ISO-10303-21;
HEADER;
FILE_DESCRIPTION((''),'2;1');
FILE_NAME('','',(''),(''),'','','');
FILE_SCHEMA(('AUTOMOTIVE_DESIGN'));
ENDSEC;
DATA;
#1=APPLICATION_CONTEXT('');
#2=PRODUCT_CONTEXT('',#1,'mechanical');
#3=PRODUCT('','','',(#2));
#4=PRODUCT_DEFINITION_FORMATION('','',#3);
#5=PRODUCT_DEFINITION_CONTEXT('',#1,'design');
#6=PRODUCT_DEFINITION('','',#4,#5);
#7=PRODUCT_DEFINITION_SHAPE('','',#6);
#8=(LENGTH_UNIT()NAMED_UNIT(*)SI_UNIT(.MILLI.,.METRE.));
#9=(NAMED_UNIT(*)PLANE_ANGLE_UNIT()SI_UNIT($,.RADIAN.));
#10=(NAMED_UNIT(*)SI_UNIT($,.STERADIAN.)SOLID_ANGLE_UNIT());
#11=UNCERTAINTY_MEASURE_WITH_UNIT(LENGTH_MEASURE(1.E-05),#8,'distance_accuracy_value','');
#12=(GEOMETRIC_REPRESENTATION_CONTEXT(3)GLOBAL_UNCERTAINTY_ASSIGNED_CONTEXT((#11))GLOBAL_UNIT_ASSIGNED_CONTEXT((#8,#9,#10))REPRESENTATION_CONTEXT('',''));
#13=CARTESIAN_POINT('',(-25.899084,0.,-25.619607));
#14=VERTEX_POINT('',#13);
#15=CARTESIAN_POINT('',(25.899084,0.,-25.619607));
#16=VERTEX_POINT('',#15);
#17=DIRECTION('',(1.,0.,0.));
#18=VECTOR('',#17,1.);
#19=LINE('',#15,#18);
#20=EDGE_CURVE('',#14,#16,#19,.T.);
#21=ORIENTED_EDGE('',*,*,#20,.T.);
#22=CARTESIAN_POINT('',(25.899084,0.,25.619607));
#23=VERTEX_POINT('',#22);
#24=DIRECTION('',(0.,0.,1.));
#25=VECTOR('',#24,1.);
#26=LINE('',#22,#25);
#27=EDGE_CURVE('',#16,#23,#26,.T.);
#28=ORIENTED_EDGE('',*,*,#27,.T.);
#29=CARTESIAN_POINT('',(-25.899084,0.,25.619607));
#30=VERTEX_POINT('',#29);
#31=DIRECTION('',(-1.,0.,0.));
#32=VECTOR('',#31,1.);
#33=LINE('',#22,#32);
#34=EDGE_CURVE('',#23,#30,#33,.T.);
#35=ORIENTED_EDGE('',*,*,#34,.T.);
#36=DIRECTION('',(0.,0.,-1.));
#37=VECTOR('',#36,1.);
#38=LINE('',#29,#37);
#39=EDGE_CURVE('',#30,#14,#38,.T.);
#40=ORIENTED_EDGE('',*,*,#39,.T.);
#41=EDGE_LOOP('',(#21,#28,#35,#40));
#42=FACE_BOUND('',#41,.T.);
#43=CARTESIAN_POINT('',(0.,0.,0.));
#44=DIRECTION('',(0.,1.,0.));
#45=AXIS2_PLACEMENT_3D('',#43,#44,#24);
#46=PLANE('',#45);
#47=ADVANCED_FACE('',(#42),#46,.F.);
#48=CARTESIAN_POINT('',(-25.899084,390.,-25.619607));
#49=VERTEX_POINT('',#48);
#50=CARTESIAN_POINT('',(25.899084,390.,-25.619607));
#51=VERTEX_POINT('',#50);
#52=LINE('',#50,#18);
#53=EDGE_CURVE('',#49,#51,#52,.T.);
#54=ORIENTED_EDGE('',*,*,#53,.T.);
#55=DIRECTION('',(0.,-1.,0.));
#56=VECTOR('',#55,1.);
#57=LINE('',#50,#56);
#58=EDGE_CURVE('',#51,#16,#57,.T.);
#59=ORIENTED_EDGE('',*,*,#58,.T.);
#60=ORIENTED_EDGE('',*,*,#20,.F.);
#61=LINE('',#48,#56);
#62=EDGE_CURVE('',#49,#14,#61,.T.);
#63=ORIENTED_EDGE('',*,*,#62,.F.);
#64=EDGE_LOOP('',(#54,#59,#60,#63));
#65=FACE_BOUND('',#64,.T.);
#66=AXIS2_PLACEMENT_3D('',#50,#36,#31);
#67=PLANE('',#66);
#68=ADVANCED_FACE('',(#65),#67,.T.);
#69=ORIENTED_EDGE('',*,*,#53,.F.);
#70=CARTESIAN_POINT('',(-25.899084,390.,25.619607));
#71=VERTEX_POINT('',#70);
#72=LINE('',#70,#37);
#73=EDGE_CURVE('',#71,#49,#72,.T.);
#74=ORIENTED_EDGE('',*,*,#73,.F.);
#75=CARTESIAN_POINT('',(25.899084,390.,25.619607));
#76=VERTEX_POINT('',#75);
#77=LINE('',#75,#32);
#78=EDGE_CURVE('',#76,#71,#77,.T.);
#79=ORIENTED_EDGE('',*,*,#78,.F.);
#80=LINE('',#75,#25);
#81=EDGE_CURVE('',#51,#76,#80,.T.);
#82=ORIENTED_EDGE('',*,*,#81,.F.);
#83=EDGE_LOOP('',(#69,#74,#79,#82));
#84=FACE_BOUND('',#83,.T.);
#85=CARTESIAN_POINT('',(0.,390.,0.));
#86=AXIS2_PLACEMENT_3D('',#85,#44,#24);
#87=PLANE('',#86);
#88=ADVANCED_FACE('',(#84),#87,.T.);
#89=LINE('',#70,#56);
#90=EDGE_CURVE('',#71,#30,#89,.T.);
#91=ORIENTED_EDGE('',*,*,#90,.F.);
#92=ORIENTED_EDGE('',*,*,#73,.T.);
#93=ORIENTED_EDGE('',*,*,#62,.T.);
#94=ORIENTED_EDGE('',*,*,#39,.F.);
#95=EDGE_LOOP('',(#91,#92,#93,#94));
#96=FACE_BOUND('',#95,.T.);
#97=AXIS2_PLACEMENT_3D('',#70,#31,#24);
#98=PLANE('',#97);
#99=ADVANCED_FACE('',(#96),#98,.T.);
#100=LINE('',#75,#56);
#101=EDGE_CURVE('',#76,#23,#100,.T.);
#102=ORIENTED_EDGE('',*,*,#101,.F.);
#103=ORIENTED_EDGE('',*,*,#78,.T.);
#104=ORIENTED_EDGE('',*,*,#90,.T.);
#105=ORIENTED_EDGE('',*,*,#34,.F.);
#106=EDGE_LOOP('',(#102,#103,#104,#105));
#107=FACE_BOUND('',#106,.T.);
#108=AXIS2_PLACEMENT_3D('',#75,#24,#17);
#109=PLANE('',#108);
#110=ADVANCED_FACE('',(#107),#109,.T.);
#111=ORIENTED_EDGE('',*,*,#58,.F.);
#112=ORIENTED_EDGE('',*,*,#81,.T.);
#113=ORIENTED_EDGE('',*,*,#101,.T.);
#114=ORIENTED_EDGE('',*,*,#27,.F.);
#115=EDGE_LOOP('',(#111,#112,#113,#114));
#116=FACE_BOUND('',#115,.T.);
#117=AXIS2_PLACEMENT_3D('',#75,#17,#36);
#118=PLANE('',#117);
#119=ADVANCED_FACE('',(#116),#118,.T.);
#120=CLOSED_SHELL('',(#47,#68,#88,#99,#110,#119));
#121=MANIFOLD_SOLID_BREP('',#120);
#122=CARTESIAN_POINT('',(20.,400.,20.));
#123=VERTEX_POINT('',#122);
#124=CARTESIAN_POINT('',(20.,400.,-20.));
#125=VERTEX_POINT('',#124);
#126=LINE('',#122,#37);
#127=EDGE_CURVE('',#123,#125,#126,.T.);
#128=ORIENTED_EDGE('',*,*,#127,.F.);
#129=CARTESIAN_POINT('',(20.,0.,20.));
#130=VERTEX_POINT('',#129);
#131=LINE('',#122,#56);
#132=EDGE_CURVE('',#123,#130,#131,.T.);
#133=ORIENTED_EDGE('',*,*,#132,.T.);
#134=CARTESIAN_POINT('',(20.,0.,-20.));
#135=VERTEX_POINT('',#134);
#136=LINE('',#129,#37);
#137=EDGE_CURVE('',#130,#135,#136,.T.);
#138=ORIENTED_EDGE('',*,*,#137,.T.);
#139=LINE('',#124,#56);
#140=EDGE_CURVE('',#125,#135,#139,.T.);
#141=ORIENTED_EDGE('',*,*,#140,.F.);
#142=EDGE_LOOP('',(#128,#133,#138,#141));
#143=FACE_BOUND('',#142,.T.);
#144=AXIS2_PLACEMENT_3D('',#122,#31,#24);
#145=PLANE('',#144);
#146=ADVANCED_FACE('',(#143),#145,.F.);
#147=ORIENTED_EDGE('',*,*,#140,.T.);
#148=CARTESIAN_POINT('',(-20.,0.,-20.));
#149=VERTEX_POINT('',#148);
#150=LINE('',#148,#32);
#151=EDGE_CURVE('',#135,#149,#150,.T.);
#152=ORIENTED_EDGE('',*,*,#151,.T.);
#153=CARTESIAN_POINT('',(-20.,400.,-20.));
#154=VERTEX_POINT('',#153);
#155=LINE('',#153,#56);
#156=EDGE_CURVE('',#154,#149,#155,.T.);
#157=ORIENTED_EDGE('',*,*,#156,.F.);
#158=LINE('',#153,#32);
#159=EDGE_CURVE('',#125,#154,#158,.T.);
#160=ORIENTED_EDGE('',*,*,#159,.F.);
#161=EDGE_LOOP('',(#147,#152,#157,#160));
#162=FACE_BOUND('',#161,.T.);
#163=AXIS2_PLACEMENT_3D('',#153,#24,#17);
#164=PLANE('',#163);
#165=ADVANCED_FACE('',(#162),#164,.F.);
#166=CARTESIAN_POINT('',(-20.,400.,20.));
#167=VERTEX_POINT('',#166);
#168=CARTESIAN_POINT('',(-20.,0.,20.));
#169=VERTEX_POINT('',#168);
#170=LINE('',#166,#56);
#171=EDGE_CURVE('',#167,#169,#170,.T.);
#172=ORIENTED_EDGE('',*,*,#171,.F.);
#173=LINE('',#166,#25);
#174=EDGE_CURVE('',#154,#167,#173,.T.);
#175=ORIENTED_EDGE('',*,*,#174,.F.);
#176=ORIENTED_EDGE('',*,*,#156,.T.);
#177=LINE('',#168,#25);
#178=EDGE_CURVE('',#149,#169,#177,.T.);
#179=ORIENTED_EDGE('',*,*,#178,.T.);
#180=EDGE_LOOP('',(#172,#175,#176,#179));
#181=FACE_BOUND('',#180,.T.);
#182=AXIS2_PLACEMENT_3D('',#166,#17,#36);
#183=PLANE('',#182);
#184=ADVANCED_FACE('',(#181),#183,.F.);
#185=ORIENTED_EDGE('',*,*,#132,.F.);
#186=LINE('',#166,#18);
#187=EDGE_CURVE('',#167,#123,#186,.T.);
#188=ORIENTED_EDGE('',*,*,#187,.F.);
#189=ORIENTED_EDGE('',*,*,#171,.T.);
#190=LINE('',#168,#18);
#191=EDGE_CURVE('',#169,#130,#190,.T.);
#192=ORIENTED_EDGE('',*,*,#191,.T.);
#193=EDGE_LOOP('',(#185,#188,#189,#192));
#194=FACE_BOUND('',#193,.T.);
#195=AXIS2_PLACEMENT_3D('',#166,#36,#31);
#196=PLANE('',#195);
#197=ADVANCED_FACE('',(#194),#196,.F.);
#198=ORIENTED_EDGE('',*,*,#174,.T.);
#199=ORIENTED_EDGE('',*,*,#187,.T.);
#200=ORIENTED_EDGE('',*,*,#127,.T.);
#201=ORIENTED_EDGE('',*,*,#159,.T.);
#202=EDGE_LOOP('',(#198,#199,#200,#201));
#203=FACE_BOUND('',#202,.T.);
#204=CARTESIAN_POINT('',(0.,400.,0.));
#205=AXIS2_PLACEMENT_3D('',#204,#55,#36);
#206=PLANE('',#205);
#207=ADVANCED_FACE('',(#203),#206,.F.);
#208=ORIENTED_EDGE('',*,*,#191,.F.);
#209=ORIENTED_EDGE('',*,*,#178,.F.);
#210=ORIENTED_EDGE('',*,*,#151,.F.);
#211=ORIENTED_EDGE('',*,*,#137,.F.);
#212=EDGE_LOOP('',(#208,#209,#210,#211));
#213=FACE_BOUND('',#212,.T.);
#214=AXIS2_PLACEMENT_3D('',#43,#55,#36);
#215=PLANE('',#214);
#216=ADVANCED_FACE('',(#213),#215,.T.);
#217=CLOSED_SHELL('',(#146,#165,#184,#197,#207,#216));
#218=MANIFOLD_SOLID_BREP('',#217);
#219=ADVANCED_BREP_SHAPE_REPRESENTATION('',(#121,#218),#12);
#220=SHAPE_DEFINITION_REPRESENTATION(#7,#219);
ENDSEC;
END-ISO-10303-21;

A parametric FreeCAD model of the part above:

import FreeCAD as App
import Part
import Sketcher

V = App.Vector


def add_polygon(sketch, points):
    """Adds a closed chain of lines whose ends are joined by coincident constraints."""
    first, n = sketch.GeometryCount, len(points)
    for a, b in zip(points, points[1:] + points[:1]):
        sketch.addGeometry(Part.LineSegment(App.Vector(*a, 0), App.Vector(*b, 0)), False)
    for i in range(n):
        sketch.addConstraint(Sketcher.Constraint("Coincident", first + i, 2, first + (i + 1) % n, 1))

doc = App.newDocument("Part")
params = doc.addObject("Spreadsheet::Sheet", "Params")
for row, (alias, value) in enumerate([
    ("sketch1_width", "40 mm"),
    ("pad1_length", "400 mm"),
    ("pad2_length", "390 mm"),
], start=1):
    params.set(f"A{row}", alias)
    params.set(f"B{row}", "=" + value)
    params.setAlias(f"B{row}", alias)

body = doc.addObject("PartDesign::Body", "Body")

sketch1 = doc.addObject("Sketcher::SketchObject", "Sketch")
body.addObject(sketch1)
sketch1.AttachmentSupport = (doc.XZ_Plane, [""])
sketch1.MapMode = "FlatFace"
add_polygon(sketch1, [(-20, -20), (-20, 20), (20, 20), (20, -20)])
sketch1.addConstraint(Sketcher.Constraint("Vertical", 0))
sketch1.addConstraint(Sketcher.Constraint("Horizontal", 1))
sketch1.addConstraint(Sketcher.Constraint("Vertical", 2))
sketch1.addConstraint(Sketcher.Constraint("Horizontal", 3))
sketch1.addConstraint(Sketcher.Constraint("Symmetric", 0, 2, 2, 2, -1, 1))
sketch1.addConstraint(Sketcher.Constraint("Equal", 3, 0))
sketch1.addConstraint(Sketcher.Constraint("DistanceX", 1, 1, 1, 2, 40.0))
sketch1.setExpression("Constraints[10]", "Params.sketch1_width")
pad1 = doc.addObject("PartDesign::Pad", "Pad")
body.addObject(pad1)
pad1.Profile = sketch1
pad1.setExpression("Length", "Params.pad1_length")
pad1.Reversed = True
body2 = doc.addObject("PartDesign::Body", "Body001")

sketch2 = doc.addObject("Sketcher::SketchObject", "Sketch001")
body2.addObject(sketch2)
sketch2.AttachmentSupport = (doc.getObject("XZ_Plane001"), [""])
sketch2.MapMode = "FlatFace"
add_polygon(sketch2, [(26, -26), (26, 26), (-26, 26), (-26, -26)])
sketch2.addConstraint(Sketcher.Constraint("Vertical", 0))
sketch2.addConstraint(Sketcher.Constraint("Horizontal", 1))
sketch2.addConstraint(Sketcher.Constraint("Vertical", 2))
sketch2.addConstraint(Sketcher.Constraint("Horizontal", 3))
sketch2.addConstraint(Sketcher.Constraint("Symmetric", 0, 2, 2, 2, -1, 1))
sketch2.addConstraint(Sketcher.Constraint("DistanceX", 1, 2, 1, 1, 51.798168))
sketch2.addConstraint(Sketcher.Constraint("DistanceY", 0, 1, 0, 2, 51.239214))
pad2 = doc.addObject("PartDesign::Pad", "Pad001")
body2.addObject(pad2)
pad2.Profile = sketch2
pad2.setExpression("Length", "Params.pad2_length")
pad2.Reversed = True

doc.recompute()
